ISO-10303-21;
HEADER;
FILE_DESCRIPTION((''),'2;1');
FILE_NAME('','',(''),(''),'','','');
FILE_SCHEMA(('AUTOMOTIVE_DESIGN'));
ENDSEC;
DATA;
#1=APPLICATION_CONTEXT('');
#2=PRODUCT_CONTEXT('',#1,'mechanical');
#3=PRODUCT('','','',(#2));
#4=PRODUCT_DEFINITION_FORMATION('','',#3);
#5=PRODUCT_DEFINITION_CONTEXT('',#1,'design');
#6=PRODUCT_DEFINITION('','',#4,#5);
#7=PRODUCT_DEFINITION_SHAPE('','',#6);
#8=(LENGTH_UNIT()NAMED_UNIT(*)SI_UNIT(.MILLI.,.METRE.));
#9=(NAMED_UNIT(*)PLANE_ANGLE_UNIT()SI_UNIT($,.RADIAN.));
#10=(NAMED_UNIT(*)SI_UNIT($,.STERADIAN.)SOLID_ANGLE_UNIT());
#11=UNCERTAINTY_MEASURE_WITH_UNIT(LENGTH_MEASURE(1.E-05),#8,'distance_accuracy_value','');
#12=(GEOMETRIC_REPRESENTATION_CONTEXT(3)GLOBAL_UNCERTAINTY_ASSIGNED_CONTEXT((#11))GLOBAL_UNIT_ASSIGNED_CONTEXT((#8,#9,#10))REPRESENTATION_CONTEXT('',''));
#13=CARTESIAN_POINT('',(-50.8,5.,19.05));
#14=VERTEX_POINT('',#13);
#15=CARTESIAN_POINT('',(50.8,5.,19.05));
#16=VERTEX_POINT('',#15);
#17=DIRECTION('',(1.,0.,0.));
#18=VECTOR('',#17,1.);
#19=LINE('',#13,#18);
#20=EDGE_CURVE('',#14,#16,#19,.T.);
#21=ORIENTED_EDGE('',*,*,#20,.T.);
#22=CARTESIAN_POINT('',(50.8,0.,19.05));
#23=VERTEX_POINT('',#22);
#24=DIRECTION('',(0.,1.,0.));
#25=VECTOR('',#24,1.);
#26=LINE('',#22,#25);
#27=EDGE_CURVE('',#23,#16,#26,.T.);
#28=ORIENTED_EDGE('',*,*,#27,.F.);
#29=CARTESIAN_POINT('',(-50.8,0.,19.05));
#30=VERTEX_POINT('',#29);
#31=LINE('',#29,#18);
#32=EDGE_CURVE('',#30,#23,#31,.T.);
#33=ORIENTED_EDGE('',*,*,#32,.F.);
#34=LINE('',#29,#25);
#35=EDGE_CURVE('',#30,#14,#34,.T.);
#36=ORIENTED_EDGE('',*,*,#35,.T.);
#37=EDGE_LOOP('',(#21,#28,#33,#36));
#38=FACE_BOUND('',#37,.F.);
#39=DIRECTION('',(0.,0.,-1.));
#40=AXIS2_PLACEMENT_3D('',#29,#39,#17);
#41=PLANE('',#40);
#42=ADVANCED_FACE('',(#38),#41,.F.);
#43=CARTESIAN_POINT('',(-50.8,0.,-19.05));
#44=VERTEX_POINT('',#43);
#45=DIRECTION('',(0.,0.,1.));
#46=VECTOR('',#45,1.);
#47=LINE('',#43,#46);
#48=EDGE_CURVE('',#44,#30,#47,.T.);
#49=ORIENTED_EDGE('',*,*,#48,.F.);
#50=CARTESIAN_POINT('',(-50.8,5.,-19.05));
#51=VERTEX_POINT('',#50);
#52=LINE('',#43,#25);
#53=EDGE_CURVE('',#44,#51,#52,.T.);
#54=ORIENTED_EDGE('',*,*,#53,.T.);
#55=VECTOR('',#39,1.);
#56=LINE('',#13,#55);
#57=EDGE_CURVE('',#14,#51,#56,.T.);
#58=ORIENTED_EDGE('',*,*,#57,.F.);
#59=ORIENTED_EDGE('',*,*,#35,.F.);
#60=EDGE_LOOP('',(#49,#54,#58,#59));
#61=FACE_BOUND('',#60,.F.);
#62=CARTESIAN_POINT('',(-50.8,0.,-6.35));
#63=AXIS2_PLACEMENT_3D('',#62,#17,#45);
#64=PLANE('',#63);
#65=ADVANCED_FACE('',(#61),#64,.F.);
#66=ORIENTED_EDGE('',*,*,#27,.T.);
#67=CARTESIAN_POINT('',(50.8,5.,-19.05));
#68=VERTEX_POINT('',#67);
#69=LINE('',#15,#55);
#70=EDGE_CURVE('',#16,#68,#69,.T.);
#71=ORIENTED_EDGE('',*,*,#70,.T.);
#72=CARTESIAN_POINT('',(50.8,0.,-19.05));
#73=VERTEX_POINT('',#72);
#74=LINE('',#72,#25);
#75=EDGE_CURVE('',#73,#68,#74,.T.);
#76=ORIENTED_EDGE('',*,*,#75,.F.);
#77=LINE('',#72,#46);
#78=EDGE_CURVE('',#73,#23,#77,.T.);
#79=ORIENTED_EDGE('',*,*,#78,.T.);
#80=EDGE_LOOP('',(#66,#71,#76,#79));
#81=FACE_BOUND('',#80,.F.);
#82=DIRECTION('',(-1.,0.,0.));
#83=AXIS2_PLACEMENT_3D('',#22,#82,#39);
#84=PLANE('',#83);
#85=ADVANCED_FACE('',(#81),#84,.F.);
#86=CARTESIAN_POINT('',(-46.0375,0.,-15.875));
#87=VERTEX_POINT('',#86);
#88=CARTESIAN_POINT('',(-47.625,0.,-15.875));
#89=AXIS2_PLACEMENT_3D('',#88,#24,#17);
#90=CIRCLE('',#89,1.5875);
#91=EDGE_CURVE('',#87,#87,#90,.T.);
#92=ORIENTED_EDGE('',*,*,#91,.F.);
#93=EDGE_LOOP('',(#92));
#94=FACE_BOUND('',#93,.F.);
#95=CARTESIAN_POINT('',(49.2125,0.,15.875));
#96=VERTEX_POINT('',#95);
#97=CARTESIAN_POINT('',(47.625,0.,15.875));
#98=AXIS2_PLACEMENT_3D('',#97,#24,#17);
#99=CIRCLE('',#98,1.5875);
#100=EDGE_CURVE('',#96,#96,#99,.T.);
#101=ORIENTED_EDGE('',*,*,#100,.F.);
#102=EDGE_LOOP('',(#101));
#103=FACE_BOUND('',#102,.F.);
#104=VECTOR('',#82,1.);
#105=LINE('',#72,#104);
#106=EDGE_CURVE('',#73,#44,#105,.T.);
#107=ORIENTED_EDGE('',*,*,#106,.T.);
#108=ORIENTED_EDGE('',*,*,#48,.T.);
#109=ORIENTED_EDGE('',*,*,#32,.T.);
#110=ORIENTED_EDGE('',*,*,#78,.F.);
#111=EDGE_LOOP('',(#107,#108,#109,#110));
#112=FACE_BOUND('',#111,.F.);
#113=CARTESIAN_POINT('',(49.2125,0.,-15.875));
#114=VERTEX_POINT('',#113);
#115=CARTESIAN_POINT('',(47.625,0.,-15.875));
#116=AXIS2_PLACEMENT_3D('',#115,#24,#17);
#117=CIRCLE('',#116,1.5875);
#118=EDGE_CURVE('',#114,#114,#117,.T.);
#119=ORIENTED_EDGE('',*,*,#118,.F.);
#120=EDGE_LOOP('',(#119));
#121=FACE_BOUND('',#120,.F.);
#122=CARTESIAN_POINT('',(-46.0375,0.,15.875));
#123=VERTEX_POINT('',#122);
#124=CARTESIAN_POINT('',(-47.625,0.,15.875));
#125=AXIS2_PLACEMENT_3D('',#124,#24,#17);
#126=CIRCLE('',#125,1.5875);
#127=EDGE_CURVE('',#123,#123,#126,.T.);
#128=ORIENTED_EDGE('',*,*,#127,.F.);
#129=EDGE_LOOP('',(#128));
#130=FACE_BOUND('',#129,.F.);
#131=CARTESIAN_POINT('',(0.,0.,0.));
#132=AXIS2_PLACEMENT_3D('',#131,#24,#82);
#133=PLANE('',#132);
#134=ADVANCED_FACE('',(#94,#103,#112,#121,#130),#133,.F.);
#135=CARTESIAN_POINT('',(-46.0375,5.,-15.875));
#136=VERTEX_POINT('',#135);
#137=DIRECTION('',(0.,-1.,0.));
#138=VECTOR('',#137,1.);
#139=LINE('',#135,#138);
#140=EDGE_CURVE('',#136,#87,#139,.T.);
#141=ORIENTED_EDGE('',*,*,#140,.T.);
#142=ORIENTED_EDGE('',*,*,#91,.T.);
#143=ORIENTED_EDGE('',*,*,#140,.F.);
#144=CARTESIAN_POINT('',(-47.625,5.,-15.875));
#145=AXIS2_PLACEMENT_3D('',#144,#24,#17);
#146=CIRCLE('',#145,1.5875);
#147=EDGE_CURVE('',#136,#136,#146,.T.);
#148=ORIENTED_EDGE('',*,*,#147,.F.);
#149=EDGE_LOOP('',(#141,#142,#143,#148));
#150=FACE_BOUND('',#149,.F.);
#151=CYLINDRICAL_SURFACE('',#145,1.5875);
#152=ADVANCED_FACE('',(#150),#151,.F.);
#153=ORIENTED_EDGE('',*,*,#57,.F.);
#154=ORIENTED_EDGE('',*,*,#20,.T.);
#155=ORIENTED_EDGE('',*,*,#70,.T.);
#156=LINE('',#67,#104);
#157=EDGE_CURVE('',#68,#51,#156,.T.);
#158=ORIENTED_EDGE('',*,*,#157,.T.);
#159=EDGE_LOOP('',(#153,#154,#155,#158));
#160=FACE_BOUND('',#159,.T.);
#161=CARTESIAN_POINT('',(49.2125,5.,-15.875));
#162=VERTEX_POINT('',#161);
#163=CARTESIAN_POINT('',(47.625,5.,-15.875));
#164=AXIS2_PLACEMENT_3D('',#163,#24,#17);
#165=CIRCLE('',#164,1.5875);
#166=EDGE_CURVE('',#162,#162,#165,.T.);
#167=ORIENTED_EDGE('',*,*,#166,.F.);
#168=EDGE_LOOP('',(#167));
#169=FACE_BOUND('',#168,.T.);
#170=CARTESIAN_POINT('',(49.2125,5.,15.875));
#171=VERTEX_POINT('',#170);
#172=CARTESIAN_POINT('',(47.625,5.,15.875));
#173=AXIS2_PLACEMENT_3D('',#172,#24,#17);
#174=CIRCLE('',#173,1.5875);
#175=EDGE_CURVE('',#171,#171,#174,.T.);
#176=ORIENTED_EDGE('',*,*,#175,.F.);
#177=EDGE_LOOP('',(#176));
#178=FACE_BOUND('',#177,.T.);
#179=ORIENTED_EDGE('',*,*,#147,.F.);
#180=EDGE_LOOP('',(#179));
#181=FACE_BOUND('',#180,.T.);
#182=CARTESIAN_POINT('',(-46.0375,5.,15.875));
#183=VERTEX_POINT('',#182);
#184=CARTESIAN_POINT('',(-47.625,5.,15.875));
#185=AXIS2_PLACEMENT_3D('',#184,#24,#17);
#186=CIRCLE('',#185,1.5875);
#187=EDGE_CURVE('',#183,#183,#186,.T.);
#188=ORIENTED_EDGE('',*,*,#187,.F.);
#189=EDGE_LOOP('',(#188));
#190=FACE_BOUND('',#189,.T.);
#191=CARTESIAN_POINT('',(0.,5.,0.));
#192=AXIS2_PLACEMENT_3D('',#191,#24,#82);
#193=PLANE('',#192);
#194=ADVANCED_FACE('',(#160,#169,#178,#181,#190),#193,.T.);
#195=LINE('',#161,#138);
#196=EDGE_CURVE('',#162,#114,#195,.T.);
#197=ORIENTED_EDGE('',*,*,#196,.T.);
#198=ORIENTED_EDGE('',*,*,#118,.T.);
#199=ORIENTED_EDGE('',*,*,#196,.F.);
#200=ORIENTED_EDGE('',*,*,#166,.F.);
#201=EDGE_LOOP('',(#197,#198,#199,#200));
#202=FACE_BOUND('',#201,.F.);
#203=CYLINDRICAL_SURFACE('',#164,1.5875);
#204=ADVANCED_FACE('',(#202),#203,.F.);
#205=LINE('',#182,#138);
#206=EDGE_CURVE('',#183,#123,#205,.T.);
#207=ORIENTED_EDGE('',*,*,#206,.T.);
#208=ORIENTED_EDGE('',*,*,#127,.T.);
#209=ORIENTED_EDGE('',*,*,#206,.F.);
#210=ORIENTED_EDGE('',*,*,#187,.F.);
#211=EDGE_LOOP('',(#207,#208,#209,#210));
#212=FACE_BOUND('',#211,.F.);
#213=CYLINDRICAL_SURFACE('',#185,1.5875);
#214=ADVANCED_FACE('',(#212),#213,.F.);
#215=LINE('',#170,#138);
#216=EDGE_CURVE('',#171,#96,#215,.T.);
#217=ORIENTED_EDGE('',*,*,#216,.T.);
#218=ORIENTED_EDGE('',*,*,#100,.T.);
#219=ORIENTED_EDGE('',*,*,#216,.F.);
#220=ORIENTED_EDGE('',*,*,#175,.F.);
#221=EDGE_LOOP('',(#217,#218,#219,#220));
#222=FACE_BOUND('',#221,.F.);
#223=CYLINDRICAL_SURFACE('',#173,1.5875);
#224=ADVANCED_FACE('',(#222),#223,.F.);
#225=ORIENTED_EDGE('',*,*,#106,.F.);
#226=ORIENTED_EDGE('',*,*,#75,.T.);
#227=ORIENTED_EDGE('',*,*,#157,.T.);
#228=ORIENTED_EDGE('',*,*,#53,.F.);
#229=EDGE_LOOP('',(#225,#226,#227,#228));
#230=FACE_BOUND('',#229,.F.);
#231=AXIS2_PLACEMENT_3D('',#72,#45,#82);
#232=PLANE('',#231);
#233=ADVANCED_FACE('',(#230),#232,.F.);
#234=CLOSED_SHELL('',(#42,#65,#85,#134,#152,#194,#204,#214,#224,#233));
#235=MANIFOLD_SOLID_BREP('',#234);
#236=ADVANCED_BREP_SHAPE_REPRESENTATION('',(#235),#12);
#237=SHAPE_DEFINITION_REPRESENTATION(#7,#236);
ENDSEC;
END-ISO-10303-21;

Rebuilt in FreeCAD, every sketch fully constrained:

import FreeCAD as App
import Part
import Sketcher
from FreeCAD import Vector
Q = App.Units.Quantity


def add_polygon(sketch, points):
    """Adds a closed chain of lines whose ends are joined by coincident constraints."""
    first, n = sketch.GeometryCount, len(points)
    for a, b in zip(points, points[1:] + points[:1]):
        sketch.addGeometry(Part.LineSegment(App.Vector(*a, 0), App.Vector(*b, 0)), False)
    for i in range(n):
        sketch.addConstraint(Sketcher.Constraint("Coincident", first + i, 2, first + (i + 1) % n, 1))

doc = App.newDocument("Part")
body = doc.addObject("PartDesign::Body", "Body")

sketch1 = body.newObject("Sketcher::SketchObject", "Sketch")
sketch1.AttachmentSupport = (doc.getObject("XZ_Plane"), [""])
sketch1.MapMode = "FlatFace"
add_polygon(sketch1, [(-51, -19), (-51, 19), (51, 19), (51, -19)])
sketch1.addConstraint(Sketcher.Constraint("Vertical", 0))
sketch1.addConstraint(Sketcher.Constraint("Horizontal", 1))
sketch1.addConstraint(Sketcher.Constraint("Vertical", 2))
sketch1.addConstraint(Sketcher.Constraint("Horizontal", 3))
sketch1.addConstraint(Sketcher.Constraint("Symmetric", 0, 2, 2, 2, -1, 1))
sketch1.addConstraint(Sketcher.Constraint("DistanceX", 1, 1, 1, 2, Q("4 in")))
sketch1.addConstraint(Sketcher.Constraint("DistanceY", 0, 1, 0, 2, Q("1.5 in")))
pad1 = body.newObject("PartDesign::Pad", "Pad")
pad1.Profile = sketch1
pad1.Length = 5
pad1.Reversed = True

sketch2 = body.newObject("Sketcher::SketchObject", "Sketch001")
sketch2.AttachmentSupport = (doc.getObject("XZ_Plane"), [""])
sketch2.MapMode = "FlatFace"
sketch2.AttachmentOffset = App.Placement(Vector(0, 0, -5), App.Rotation())
sketch2.addGeometry(Part.Circle(Vector(-47.6, 15.9, 0), Vector(0, 0, 1), 1.6), False)
sketch2.addGeometry(Part.Circle(Vector(-47.6, -15.9, 0), Vector(0, 0, 1), 1.6), False)
sketch2.addGeometry(Part.Circle(Vector(47.6, -15.9, 0), Vector(0, 0, 1), 1.6), False)
sketch2.addGeometry(Part.Circle(Vector(47.6, 15.9, 0), Vector(0, 0, 1), 1.6), False)
sketch2.addConstraint(Sketcher.Constraint("Equal", 0, 1))
sketch2.addConstraint(Sketcher.Constraint("Equal", 1, 2))
sketch2.addConstraint(Sketcher.Constraint("Equal", 2, 3))
sketch2.addConstraint(Sketcher.Constraint("Symmetric", 0, 3, 2, 3, -1, 1))
sketch2.addConstraint(Sketcher.Constraint("Symmetric", 1, 3, 3, 3, -1, 1))
sketch2.addConstraint(Sketcher.Constraint("Symmetric", 1, 3, 2, 3, -2))
sketch2.addConstraint(Sketcher.Constraint("Diameter", 0, Q("0.125 in")))
sketch2.addConstraint(Sketcher.Constraint("DistanceY", 1, 3, 0, 3, Q("1.25 in")))
sketch2.addConstraint(Sketcher.Constraint("DistanceX", 1, 3, 2, 3, Q("3.75 in")))
pocket1 = body.newObject("PartDesign::Pocket", "Pocket")
pocket1.Profile = sketch2
pocket1.Type = "ThroughAll"
pocket1.Reversed = True

doc.recompute()
